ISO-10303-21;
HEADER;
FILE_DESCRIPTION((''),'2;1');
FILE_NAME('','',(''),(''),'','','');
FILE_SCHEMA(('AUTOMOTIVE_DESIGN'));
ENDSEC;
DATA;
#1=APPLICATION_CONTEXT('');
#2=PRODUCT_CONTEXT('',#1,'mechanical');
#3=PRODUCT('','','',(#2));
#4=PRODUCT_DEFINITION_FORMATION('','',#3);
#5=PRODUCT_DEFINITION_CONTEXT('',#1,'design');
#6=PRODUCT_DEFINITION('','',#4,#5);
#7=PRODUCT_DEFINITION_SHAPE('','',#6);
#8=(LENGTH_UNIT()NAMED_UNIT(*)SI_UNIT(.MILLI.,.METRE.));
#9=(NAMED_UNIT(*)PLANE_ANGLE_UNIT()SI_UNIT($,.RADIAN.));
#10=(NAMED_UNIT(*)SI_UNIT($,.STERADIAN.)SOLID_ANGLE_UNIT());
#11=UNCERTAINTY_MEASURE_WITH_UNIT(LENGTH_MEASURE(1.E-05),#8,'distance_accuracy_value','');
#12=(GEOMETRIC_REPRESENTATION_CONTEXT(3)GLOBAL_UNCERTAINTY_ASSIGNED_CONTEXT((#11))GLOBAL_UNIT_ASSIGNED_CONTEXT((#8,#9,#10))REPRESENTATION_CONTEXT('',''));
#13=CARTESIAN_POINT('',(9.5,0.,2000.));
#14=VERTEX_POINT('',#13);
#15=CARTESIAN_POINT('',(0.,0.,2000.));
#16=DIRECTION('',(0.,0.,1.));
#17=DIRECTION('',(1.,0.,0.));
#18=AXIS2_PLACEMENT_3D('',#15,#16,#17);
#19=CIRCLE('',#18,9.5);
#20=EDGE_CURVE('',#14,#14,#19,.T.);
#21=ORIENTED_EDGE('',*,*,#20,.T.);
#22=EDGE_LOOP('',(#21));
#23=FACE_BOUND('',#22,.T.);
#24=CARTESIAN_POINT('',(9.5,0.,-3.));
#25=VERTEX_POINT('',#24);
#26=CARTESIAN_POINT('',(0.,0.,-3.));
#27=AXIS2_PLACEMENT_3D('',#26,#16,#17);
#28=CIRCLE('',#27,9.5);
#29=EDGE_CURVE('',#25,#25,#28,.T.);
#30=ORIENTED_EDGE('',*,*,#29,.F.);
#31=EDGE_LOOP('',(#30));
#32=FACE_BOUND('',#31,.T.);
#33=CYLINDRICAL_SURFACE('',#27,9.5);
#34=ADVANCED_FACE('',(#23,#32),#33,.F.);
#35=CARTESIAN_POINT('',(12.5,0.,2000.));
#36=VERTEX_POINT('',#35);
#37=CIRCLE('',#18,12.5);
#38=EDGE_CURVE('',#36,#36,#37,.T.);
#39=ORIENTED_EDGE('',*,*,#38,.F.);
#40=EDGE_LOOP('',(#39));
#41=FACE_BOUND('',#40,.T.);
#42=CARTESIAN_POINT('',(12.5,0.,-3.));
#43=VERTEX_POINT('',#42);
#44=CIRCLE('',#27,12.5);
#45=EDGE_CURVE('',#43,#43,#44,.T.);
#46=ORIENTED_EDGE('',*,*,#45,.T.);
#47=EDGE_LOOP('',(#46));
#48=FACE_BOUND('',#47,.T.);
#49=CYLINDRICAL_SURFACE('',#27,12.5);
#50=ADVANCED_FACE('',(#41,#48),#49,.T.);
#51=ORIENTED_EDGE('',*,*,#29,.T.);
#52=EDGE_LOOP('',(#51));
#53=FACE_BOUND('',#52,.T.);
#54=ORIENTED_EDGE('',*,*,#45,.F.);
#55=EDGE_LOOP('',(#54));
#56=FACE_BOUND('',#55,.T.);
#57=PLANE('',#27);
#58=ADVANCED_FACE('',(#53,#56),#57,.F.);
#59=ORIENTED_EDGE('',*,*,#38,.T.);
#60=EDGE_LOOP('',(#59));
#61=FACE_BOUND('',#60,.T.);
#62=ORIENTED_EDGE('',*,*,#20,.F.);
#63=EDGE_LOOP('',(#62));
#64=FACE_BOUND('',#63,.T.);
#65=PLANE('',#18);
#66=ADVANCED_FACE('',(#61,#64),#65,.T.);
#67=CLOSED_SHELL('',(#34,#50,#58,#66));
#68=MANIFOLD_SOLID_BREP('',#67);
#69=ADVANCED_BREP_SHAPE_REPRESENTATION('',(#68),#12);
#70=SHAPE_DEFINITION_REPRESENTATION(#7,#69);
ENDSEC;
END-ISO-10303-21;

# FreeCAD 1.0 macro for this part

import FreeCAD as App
import Part
import Sketcher
Q = App.Units.Quantity

doc = App.newDocument("Part")
body = doc.addObject("PartDesign::Body", "Body")

sketch1 = doc.addObject("Sketcher::SketchObject", "Sketch")
body.addObject(sketch1)
sketch1.AttachmentSupport = (doc.XY_Plane, [""])
sketch1.MapMode = "FlatFace"
sketch1.addGeometry([
    Part.Circle(App.Vector(0, 0, 0), App.Vector(0, 0, 1), 12),
    Part.Circle(App.Vector(0, 0, 0), App.Vector(0, 0, 1), 10),
], False)
sketch1.addConstraint([
    Sketcher.Constraint("Coincident", 0, 3, -1, 1),
    Sketcher.Constraint("Coincident", 1, 3, -1, 1),
    Sketcher.Constraint("Diameter", 0, Q("25 mm")),
    Sketcher.Constraint("Diameter", 1, Q("19 mm")),
])
pad1 = doc.addObject("PartDesign::Pad", "Pad")
body.addObject(pad1)
pad1.Profile = sketch1
pad1.Type = "TwoLengths"
pad1.Length = 2000
pad1.Length2 = 3

doc.recompute()
